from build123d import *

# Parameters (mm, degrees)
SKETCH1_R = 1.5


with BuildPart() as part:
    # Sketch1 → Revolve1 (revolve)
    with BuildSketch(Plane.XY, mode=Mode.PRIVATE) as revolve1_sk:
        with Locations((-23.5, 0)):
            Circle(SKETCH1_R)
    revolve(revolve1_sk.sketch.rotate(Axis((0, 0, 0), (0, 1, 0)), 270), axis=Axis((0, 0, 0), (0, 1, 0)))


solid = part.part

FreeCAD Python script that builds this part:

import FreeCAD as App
import Part
import Sketcher

doc = App.newDocument("Part")
body = doc.addObject("PartDesign::Body", "Body")

# Sketch on XY plane
sketch1 = body.newObject("Sketcher::SketchObject", "Sketch")
sketch1.AttachmentSupport = (doc.getObject("XY_Plane"), [""])
sketch1.MapMode = "FlatFace"
sketch1.addGeometry(Part.Circle(App.Vector(-23.5, 0, 0), App.Vector(0, 0, 1), 1.5), False)
sketch1.addConstraint(Sketcher.Constraint("PointOnObject", 0, 3, -1))
sketch1.addConstraint(Sketcher.Constraint("Diameter", 0, 3.0))
sketch1.addConstraint(Sketcher.Constraint("DistanceX", 0, 3, -1, 1, 23.5))
revolution = body.newObject("PartDesign::Revolution", "Revolution")
revolution.Profile = sketch1
revolution.ReferenceAxis = (sketch1, ["V_Axis"])
revolution.Angle = 360

doc.recompute()
